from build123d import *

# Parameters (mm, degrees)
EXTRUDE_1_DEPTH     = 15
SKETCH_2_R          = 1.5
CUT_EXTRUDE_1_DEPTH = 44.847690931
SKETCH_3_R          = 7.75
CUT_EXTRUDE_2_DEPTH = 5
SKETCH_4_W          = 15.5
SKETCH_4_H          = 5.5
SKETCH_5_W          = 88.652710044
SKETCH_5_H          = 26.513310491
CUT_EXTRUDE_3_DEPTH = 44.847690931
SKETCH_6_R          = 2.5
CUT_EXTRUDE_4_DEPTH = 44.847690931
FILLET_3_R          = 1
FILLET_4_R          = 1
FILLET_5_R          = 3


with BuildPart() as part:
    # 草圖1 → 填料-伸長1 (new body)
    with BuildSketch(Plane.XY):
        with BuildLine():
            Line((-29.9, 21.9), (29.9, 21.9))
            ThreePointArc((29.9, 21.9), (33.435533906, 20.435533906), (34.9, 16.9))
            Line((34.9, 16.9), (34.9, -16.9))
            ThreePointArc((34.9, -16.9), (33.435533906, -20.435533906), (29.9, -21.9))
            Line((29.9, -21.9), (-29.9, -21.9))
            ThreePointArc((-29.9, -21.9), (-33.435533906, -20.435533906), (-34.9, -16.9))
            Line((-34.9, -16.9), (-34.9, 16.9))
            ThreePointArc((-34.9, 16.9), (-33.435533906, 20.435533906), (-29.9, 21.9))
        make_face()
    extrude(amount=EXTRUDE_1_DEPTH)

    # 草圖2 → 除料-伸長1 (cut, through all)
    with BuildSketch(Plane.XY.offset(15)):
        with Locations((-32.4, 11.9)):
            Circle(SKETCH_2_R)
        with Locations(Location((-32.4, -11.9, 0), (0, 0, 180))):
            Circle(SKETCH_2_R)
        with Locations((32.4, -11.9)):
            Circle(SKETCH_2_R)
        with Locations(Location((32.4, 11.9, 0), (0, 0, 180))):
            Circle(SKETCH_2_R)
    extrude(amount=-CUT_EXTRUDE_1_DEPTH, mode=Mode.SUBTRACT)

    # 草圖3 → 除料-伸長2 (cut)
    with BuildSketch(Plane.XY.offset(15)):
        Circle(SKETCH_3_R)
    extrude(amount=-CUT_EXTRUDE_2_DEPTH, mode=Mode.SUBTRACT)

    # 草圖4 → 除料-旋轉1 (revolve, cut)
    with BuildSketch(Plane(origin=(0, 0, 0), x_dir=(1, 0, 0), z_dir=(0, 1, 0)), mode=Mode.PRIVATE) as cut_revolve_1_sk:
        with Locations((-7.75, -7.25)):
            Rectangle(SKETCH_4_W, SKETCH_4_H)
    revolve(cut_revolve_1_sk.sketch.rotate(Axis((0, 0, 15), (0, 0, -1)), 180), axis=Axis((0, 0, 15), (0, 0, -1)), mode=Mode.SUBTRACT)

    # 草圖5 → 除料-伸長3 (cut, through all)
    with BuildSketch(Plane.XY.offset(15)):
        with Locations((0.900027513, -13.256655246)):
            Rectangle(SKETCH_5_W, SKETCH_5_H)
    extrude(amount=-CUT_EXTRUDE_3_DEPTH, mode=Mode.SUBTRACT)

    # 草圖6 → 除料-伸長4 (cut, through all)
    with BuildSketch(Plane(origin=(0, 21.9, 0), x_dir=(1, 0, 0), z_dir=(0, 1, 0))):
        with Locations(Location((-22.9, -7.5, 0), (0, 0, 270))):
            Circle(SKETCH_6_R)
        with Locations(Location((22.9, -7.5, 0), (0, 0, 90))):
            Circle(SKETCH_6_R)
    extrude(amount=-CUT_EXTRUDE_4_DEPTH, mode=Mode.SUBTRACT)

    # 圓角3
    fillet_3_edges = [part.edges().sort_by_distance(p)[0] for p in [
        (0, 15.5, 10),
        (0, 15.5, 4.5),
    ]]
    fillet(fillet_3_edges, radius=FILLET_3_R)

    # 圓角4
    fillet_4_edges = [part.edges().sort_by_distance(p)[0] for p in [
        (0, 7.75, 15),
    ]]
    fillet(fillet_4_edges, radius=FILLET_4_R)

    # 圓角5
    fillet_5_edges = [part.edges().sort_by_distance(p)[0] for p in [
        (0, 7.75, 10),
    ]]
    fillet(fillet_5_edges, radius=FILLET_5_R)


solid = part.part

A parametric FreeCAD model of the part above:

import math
import FreeCAD as App
import Part
import Sketcher

V = App.Vector
Q = App.Units.Quantity


def edges_at(feature, points):
    """Names of the edges that pass closest to the given points."""
    edges = feature.Shape.Edges
    near = lambda p: min(range(len(edges)), key=lambda i: edges[i].distToShape(Part.Vertex(*p))[0])
    return sorted({f"Edge{near(p) + 1}" for p in points})

doc = App.newDocument("Part")
body = doc.addObject("PartDesign::Body", "Body")

sketch1 = body.newObject("Sketcher::SketchObject", "Sketch")
sketch1.AttachmentSupport = (doc.getObject("XY_Plane"), [""])
sketch1.MapMode = "FlatFace"
sketch1.addGeometry([
    Part.LineSegment(V(29.9, 21.9, 0), V(-29.9, 21.9, 0)),
    Part.ArcOfCircle(Part.Circle(V(-29.9, 16.9, 0), V(0, 0, 1), 5), math.radians(90), math.radians(180)),
    Part.LineSegment(V(-34.9, 16.9, 0), V(-34.9, -16.9, 0)),
    Part.ArcOfCircle(Part.Circle(V(-29.9, -16.9, 0), V(0, 0, 1), 5), math.radians(180), math.radians(270)),
    Part.LineSegment(V(-29.9, -21.9, 0), V(29.9, -21.9, 0)),
    Part.ArcOfCircle(Part.Circle(V(29.9, -16.9, 0), V(0, 0, 1), 5), math.radians(-90), math.radians(0)),
    Part.LineSegment(V(34.9, -16.9, 0), V(34.9, 16.9, 0)),
    Part.ArcOfCircle(Part.Circle(V(29.9, 16.9, 0), V(0, 0, 1), 5), math.radians(0), math.radians(90)),
], False)
sketch1.addConstraint([
    Sketcher.Constraint("Tangent", 0, 2, 1, 1),
    Sketcher.Constraint("Tangent", 1, 2, 2, 1),
    Sketcher.Constraint("Tangent", 2, 2, 3, 1),
    Sketcher.Constraint("Tangent", 3, 2, 4, 1),
    Sketcher.Constraint("Tangent", 4, 2, 5, 1),
    Sketcher.Constraint("Tangent", 5, 2, 6, 1),
    Sketcher.Constraint("Tangent", 6, 2, 7, 1),
    Sketcher.Constraint("Tangent", 7, 2, 0, 1),
    Sketcher.Constraint("Horizontal", 0),
    Sketcher.Constraint("Vertical", 2),
    Sketcher.Constraint("Horizontal", 4),
    Sketcher.Constraint("Vertical", 6),
    Sketcher.Constraint("Equal", 1, 3),
    Sketcher.Constraint("Equal", 3, 5),
    Sketcher.Constraint("Equal", 5, 7),
    Sketcher.Constraint("Symmetric", 1, 3, 5, 3, -1, 1),
    Sketcher.Constraint("Radius", 1, Q("5 mm")),
    Sketcher.Constraint("DistanceX", 0, 2, 0, 1, Q("59.8 mm")),
    Sketcher.Constraint("DistanceY", 2, 2, 2, 1, Q("33.8 mm")),
])
pad1 = body.newObject("PartDesign::Pad", "Pad")
pad1.Profile = sketch1
pad1.Length = 15

sketch2 = body.newObject("Sketcher::SketchObject", "Sketch001")
sketch2.AttachmentSupport = (doc.getObject("XY_Plane"), [""])
sketch2.MapMode = "FlatFace"
sketch2.AttachmentOffset = App.Placement(V(0, 0, 15), App.Rotation())
sketch2.addGeometry([
    Part.Circle(V(-32.4, 11.9, 0), V(0, 0, 1), 1.5),
    Part.Circle(V(-32.4, -11.9, 0), V(0, 0, 1), 1.5),
    Part.Circle(V(32.4, -11.9, 0), V(0, 0, 1), 1.5),
    Part.Circle(V(32.4, 11.9, 0), V(0, 0, 1), 1.5),
], False)
sketch2.addConstraint([
    Sketcher.Constraint("Equal", 0, 1),
    Sketcher.Constraint("Equal", 1, 2),
    Sketcher.Constraint("Equal", 2, 3),
    Sketcher.Constraint("Symmetric", 0, 3, 2, 3, -1, 1),
    Sketcher.Constraint("Symmetric", 1, 3, 3, 3, -1, 1),
    Sketcher.Constraint("Symmetric", 1, 3, 2, 3, -2),
    Sketcher.Constraint("Diameter", 0, Q("3 mm")),
    Sketcher.Constraint("DistanceX", 0, 3, -1, 1, Q("32.4 mm")),
    Sketcher.Constraint("DistanceY", -1, 1, 0, 3, Q("11.9 mm")),
])
pocket1 = body.newObject("PartDesign::Pocket", "Pocket")
pocket1.Profile = sketch2
pocket1.Type = "ThroughAll"

sketch3 = body.newObject("Sketcher::SketchObject", "Sketch002")
sketch3.AttachmentSupport = (doc.getObject("XY_Plane"), [""])
sketch3.MapMode = "FlatFace"
sketch3.AttachmentOffset = App.Placement(V(0, 0, 15), App.Rotation())
sketch3.addGeometry(Part.Circle(V(0, 0, 0), V(0, 0, 1), 7.75), False)
sketch3.addConstraint([
    Sketcher.Constraint("Coincident", 0, 3, -1, 1),
    Sketcher.Constraint("Diameter", 0, Q("15.5 mm")),
])
pocket2 = body.newObject("PartDesign::Pocket", "Pocket001")
pocket2.Profile = sketch3
pocket2.Length = 5

sketch4 = body.newObject("Sketcher::SketchObject", "Sketch003")
sketch4.AttachmentSupport = (doc.getObject("XZ_Plane"), [""])
sketch4.MapMode = "FlatFace"
sketch4.addGeometry([
    Part.LineSegment(V(-15.5, 4.5, 0), V(-15.5, 10, 0)),
    Part.LineSegment(V(-15.5, 10, 0), V(0, 10, 0)),
    Part.LineSegment(V(0, 10, 0), V(0, 4.5, 0)),
    Part.LineSegment(V(0, 4.5, 0), V(-15.5, 4.5, 0)),
], False)
sketch4.addConstraint([
    Sketcher.Constraint("Coincident", 0, 2, 1, 1),
    Sketcher.Constraint("Coincident", 1, 2, 2, 1),
    Sketcher.Constraint("Coincident", 2, 2, 3, 1),
    Sketcher.Constraint("Coincident", 3, 2, 0, 1),
    Sketcher.Constraint("Vertical", 0),
    Sketcher.Constraint("Horizontal", 1),
    Sketcher.Constraint("Vertical", 2),
    Sketcher.Constraint("Horizontal", 3),
    Sketcher.Constraint("PointOnObject", 1, 2, -2),
    Sketcher.Constraint("DistanceX", 1, 1, 1, 2, Q("15.5 mm")),
    Sketcher.Constraint("DistanceY", 0, 1, 0, 2, Q("5.5 mm")),
    Sketcher.Constraint("DistanceY", -1, 1, 0, 2, Q("10 mm")),
])
groove = body.newObject("PartDesign::Groove", "Groove")
groove.Profile = sketch4
groove.ReferenceAxis = (sketch4, ["V_Axis"])
groove.Angle = 360

sketch5 = body.newObject("Sketcher::SketchObject", "Sketch004")
sketch5.AttachmentSupport = (doc.getObject("XY_Plane"), [""])
sketch5.MapMode = "FlatFace"
sketch5.AttachmentOffset = App.Placement(V(0, 0, 15), App.Rotation())
sketch5.addGeometry([
    Part.LineSegment(V(-43.426328, 0, 0), V(-43.426328, -26.51331, 0)),
    Part.LineSegment(V(-43.426328, -26.51331, 0), V(45.226383, -26.51331, 0)),
    Part.LineSegment(V(45.226383, -26.51331, 0), V(45.226383, 0, 0)),
    Part.LineSegment(V(45.226383, 0, 0), V(-43.426328, 0, 0)),
], False)
sketch5.addConstraint([
    Sketcher.Constraint("Coincident", 0, 2, 1, 1),
    Sketcher.Constraint("Coincident", 1, 2, 2, 1),
    Sketcher.Constraint("Coincident", 2, 2, 3, 1),
    Sketcher.Constraint("Coincident", 3, 2, 0, 1),
    Sketcher.Constraint("Vertical", 0),
    Sketcher.Constraint("Horizontal", 1),
    Sketcher.Constraint("Vertical", 2),
    Sketcher.Constraint("Horizontal", 3),
    Sketcher.Constraint("PointOnObject", 2, 2, -1),
    Sketcher.Constraint("DistanceX", 1, 1, 1, 2, Q("88.65271 mm")),
    Sketcher.Constraint("DistanceY", 0, 2, 0, 1, Q("26.51331 mm")),
    Sketcher.Constraint("DistanceX", 0, 2, -1, 1, Q("43.426328 mm")),
])
pocket3 = body.newObject("PartDesign::Pocket", "Pocket002")
pocket3.Profile = sketch5
pocket3.Type = "ThroughAll"

sketch6 = body.newObject("Sketcher::SketchObject", "Sketch005")
sketch6.AttachmentSupport = (doc.getObject("XZ_Plane"), [""])
sketch6.MapMode = "FlatFace"
sketch6.AttachmentOffset = App.Placement(V(0, 0, -21.9), App.Rotation())
sketch6.addGeometry([
    Part.Circle(V(-22.9, 7.5, 0), V(0, 0, 1), 2.5),
    Part.Circle(V(22.9, 7.5, 0), V(0, 0, 1), 2.5),
], False)
sketch6.addConstraint([
    Sketcher.Constraint("Equal", 0, 1),
    Sketcher.Constraint("Symmetric", 0, 3, 1, 3, -2),
    Sketcher.Constraint("Diameter", 0, Q("5 mm")),
    Sketcher.Constraint("DistanceX", 0, 3, -1, 1, Q("22.9 mm")),
    Sketcher.Constraint("DistanceY", -1, 1, 0, 3, Q("7.5 mm")),
])
pocket4 = body.newObject("PartDesign::Pocket", "Pocket003")
pocket4.Profile = sketch6
pocket4.Type = "ThroughAll"
pocket4.Reversed = True
doc.recompute()

fillet = body.newObject("PartDesign::Fillet", "Fillet")
fillet.Base = (pocket4, edges_at(pocket4, [(0, 15.5, 10), (0, 15.5, 4.5)]))
fillet.Radius = 1
doc.recompute()

fillet2 = body.newObject("PartDesign::Fillet", "Fillet001")
fillet2.Base = (fillet, edges_at(fillet, [(0, 7.75, 15)]))
fillet2.Radius = 1
doc.recompute()

fillet3 = body.newObject("PartDesign::Fillet", "Fillet002")
fillet3.Base = (fillet2, edges_at(fillet2, [(0, 7.75, 10)]))
fillet3.Radius = 3

doc.recompute()
